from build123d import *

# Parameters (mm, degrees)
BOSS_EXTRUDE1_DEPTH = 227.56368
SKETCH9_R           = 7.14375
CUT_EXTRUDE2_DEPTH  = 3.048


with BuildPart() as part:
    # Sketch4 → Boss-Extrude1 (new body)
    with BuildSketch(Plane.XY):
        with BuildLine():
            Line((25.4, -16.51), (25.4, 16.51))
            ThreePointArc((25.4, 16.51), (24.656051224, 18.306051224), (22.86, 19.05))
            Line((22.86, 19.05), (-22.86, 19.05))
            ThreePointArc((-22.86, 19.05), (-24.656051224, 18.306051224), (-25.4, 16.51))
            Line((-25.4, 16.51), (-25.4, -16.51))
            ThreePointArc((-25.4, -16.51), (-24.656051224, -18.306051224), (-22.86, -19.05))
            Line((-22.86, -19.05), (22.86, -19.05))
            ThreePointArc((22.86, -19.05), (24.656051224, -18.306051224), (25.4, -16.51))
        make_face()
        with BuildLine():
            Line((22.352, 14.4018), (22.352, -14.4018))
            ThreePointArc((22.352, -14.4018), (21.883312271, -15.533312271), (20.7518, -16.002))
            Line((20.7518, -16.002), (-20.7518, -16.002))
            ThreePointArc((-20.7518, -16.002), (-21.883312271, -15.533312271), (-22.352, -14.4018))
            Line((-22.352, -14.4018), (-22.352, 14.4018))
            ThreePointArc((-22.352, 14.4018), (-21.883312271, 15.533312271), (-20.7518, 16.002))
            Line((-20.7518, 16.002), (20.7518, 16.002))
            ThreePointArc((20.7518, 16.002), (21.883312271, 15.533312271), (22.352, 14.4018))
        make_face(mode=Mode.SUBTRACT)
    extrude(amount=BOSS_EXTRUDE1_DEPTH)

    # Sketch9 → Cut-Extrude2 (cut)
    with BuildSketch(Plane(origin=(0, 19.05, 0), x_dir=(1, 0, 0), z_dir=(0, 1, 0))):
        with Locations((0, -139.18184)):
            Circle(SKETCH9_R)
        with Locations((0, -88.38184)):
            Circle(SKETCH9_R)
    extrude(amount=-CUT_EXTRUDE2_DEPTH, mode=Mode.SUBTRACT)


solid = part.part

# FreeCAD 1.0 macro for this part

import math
import FreeCAD as App
import Part
import Sketcher
from FreeCAD import Vector
Q = App.Units.Quantity

doc = App.newDocument("Part")
params = doc.addObject("Spreadsheet::Sheet", "Params")
for row, (alias, value) in enumerate([
    ("sketch1_radius", "0.1 in"),
    ("sketch1_width", "1.8 in"),
    ("sketch1_height", "1.3 in"),
    ("sketch1_radius2", "0.063 in"),
    ("sketch1_width2", "1.634 in"),
    ("pad1_length", "8.9592 in"),
    ("sketch2_diameter", "0.5625 in"),
    ("pocket1_length", "0.12 in"),
], start=1):
    params.set(f"A{row}", alias)
    params.set(f"B{row}", "=" + value)
    params.setAlias(f"B{row}", alias)

body = doc.addObject("PartDesign::Body", "Body")

sketch1 = body.newObject("Sketcher::SketchObject", "Sketch")
sketch1.AttachmentSupport = (doc.getObject("XY_Plane"), [""])
sketch1.MapMode = "FlatFace"
sketch1.addGeometry([
    Part.LineSegment(Vector(25.4, -16.5, 0), Vector(25.4, 16.5, 0)),
    Part.ArcOfCircle(Part.Circle(Vector(22.9, 16.5, 0), Vector(0, 0, 1), 2.5), math.radians(0), math.radians(90)),
    Part.LineSegment(Vector(22.9, 19.1, 0), Vector(-22.9, 19.1, 0)),
    Part.ArcOfCircle(Part.Circle(Vector(-22.9, 16.5, 0), Vector(0, 0, 1), 2.5), math.radians(90), math.radians(180)),
    Part.LineSegment(Vector(-25.4, 16.5, 0), Vector(-25.4, -16.5, 0)),
    Part.ArcOfCircle(Part.Circle(Vector(-22.9, -16.5, 0), Vector(0, 0, 1), 2.5), math.radians(-180), math.radians(-90)),
    Part.LineSegment(Vector(-22.9, -19.1, 0), Vector(22.9, -19.1, 0)),
    Part.ArcOfCircle(Part.Circle(Vector(22.9, -16.5, 0), Vector(0, 0, 1), 2.5), math.radians(-90), math.radians(0)),
    Part.ArcOfCircle(Part.Circle(Vector(20.8, 14.4, 0), Vector(0, 0, 1), 1.6), math.radians(0), math.radians(90)),
    Part.LineSegment(Vector(22.4, 14.4, 0), Vector(22.4, -14.4, 0)),
    Part.ArcOfCircle(Part.Circle(Vector(20.8, -14.4, 0), Vector(0, 0, 1), 1.6), math.radians(-90), math.radians(0)),
    Part.LineSegment(Vector(20.8, -16, 0), Vector(-20.8, -16, 0)),
    Part.ArcOfCircle(Part.Circle(Vector(-20.8, -14.4, 0), Vector(0, 0, 1), 1.6), math.radians(-180), math.radians(-90)),
    Part.LineSegment(Vector(-22.4, -14.4, 0), Vector(-22.4, 14.4, 0)),
    Part.ArcOfCircle(Part.Circle(Vector(-20.8, 14.4, 0), Vector(0, 0, 1), 1.6), math.radians(90), math.radians(180)),
    Part.LineSegment(Vector(-20.8, 16, 0), Vector(20.8, 16, 0)),
], False)
sketch1.addConstraint([
    Sketcher.Constraint("Tangent", 0, 2, 1, 1),
    Sketcher.Constraint("Tangent", 1, 2, 2, 1),
    Sketcher.Constraint("Tangent", 2, 2, 3, 1),
    Sketcher.Constraint("Tangent", 3, 2, 4, 1),
    Sketcher.Constraint("Tangent", 4, 2, 5, 1),
    Sketcher.Constraint("Tangent", 5, 2, 6, 1),
    Sketcher.Constraint("Tangent", 6, 2, 7, 1),
    Sketcher.Constraint("Tangent", 7, 2, 0, 1),
    Sketcher.Constraint("Tangent", 8, 1, 9, 1),
    Sketcher.Constraint("Tangent", 9, 2, 10, 2),
    Sketcher.Constraint("Tangent", 10, 1, 11, 1),
    Sketcher.Constraint("Tangent", 11, 2, 12, 2),
    Sketcher.Constraint("Tangent", 12, 1, 13, 1),
    Sketcher.Constraint("Tangent", 13, 2, 14, 2),
    Sketcher.Constraint("Tangent", 14, 1, 15, 1),
    Sketcher.Constraint("Tangent", 15, 2, 8, 2),
    Sketcher.Constraint("Vertical", 0),
    Sketcher.Constraint("Horizontal", 2),
    Sketcher.Constraint("Vertical", 4),
    Sketcher.Constraint("Horizontal", 6),
    Sketcher.Constraint("Vertical", 9),
    Sketcher.Constraint("Horizontal", 11),
    Sketcher.Constraint("Vertical", 13),
    Sketcher.Constraint("Horizontal", 15),
    Sketcher.Constraint("Equal", 1, 3),
    Sketcher.Constraint("Equal", 3, 5),
    Sketcher.Constraint("Equal", 5, 7),
    Sketcher.Constraint("Equal", 8, 10),
    Sketcher.Constraint("Equal", 10, 12),
    Sketcher.Constraint("Equal", 12, 14),
    Sketcher.Constraint("Symmetric", 1, 3, 5, 3, -1, 1),
    Sketcher.Constraint("Symmetric", 8, 3, 12, 3, -1, 1),
    Sketcher.Constraint("Radius", 1, Q("0.1 in")),
    Sketcher.Constraint("DistanceX", 2, 2, 2, 1, Q("1.8 in")),
    Sketcher.Constraint("DistanceY", 0, 1, 0, 2, Q("1.3 in")),
    Sketcher.Constraint("Radius", 8, Q("0.063 in")),
    Sketcher.Constraint("DistanceX", 11, 2, 11, 1, Q("1.634 in")),
    Sketcher.Constraint("DistanceY", 9, 2, 9, 1, Q("1.134 in")),
])
sketch1.setExpression("Constraints[32]", "Params.sketch1_radius")
sketch1.setExpression("Constraints[33]", "Params.sketch1_width")
sketch1.setExpression("Constraints[34]", "Params.sketch1_height")
sketch1.setExpression("Constraints[35]", "Params.sketch1_radius2")
sketch1.setExpression("Constraints[36]", "Params.sketch1_width2")
pad1 = body.newObject("PartDesign::Pad", "Pad")
pad1.Profile = sketch1
pad1.setExpression("Length", "Params.pad1_length")

sketch2 = body.newObject("Sketcher::SketchObject", "Sketch001")
sketch2.AttachmentSupport = (doc.getObject("XZ_Plane"), [""])
sketch2.MapMode = "FlatFace"
sketch2.AttachmentOffset = App.Placement(Vector(0, 0, -0.75 * 25.4), App.Rotation())
sketch2.addGeometry([
    Part.Circle(Vector(0, 139, 0), Vector(0, 0, 1), 7),
    Part.Circle(Vector(0, 88, 0), Vector(0, 0, 1), 7),
], False)
sketch2.addConstraint([
    Sketcher.Constraint("Equal", 0, 1),
    Sketcher.Constraint("PointOnObject", 0, 3, -2),
    Sketcher.Constraint("PointOnObject", 1, 3, -2),
    Sketcher.Constraint("Diameter", 0, Q("0.5625 in")),
    Sketcher.Constraint("DistanceY", 1, 3, 0, 3, Q("2 in")),
    Sketcher.Constraint("DistanceY", -1, 1, 0, 3, Q("5.4796 in")),
])
sketch2.setExpression("Constraints[3]", "Params.sketch2_diameter")
pocket1 = body.newObject("PartDesign::Pocket", "Pocket")
pocket1.Profile = sketch2
pocket1.setExpression("Length", "Params.pocket1_length")
pocket1.Reversed = True

doc.recompute()
